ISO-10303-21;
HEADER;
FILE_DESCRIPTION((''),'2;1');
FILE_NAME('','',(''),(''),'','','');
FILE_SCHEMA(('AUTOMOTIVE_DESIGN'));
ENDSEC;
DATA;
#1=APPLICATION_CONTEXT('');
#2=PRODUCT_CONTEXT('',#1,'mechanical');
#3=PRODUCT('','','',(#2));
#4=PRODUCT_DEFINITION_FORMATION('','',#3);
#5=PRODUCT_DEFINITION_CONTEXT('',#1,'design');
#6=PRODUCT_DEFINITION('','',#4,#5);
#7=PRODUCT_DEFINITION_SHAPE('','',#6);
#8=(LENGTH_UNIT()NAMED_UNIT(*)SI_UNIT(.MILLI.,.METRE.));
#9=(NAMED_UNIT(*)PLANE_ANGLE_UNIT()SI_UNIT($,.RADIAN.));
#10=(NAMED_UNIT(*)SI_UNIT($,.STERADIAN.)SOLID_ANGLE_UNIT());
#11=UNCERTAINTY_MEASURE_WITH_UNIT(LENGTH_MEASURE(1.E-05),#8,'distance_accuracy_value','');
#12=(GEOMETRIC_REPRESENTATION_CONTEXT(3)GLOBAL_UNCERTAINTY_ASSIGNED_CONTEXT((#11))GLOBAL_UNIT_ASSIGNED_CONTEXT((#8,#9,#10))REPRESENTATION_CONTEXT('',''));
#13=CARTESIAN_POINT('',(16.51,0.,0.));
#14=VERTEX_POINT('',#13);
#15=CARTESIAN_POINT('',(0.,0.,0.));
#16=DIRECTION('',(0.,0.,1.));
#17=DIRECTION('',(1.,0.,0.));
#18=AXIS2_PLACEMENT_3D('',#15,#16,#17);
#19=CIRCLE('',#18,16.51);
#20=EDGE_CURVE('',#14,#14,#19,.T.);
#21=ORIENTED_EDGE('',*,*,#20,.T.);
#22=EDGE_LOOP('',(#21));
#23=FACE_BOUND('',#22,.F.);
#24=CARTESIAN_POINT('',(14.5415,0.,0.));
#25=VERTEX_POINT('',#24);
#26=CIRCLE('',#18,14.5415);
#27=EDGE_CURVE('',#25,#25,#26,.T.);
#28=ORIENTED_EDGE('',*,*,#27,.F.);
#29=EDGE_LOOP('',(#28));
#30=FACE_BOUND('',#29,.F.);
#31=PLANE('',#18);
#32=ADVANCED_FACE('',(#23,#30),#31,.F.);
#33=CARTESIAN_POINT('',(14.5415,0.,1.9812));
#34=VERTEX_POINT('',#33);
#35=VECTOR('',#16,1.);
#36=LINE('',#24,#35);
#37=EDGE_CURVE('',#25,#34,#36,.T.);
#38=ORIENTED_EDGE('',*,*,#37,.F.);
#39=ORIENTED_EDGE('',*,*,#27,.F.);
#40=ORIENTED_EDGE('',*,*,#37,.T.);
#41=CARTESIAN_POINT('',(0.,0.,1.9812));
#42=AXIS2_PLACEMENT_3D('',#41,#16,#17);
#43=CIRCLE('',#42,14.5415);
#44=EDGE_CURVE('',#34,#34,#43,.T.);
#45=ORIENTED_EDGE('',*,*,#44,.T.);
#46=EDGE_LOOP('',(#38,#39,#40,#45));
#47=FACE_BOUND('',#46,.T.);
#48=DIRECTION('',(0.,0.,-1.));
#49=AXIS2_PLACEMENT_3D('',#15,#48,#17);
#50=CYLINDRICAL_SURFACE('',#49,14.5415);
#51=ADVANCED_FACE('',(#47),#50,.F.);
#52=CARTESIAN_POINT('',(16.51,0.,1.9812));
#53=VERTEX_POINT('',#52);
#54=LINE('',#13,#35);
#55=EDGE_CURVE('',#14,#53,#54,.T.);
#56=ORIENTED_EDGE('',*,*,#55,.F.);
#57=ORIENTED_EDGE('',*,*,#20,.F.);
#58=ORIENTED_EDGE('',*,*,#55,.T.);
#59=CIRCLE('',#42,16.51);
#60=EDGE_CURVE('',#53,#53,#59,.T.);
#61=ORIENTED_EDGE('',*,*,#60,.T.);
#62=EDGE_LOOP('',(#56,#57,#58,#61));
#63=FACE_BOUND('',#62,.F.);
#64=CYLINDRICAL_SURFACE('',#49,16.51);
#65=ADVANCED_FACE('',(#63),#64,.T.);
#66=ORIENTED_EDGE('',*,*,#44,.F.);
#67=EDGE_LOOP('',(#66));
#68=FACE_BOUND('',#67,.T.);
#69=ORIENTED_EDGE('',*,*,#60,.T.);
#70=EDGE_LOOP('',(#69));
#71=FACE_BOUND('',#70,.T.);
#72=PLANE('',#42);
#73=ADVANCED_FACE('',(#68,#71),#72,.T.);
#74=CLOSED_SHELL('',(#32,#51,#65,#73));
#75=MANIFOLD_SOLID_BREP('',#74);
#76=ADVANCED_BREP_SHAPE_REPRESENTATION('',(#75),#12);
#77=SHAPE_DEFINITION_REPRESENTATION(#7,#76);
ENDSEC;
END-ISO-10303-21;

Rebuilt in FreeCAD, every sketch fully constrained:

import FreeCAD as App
import Part
import Sketcher
from FreeCAD import Vector
Q = App.Units.Quantity

doc = App.newDocument("Part")
body = doc.addObject("PartDesign::Body", "Body")

# Sketch on XY plane
sketch1 = doc.addObject("Sketcher::SketchObject", "Sketch")
body.addObject(sketch1)
sketch1.AttachmentSupport = (doc.XY_Plane, [""])
sketch1.MapMode = "FlatFace"
sketch1.addGeometry([
    Part.Circle(Vector(0, 0, 0), Vector(0, 0, 1), 17),
    Part.Circle(Vector(0, 0, 0), Vector(0, 0, 1), 15),
], False)
sketch1.addConstraint([
    Sketcher.Constraint("Coincident", 0, 3, -1, 1),
    Sketcher.Constraint("Coincident", 1, 3, -1, 1),
    Sketcher.Constraint("Diameter", 0, Q("1.3 in")),
    Sketcher.Constraint("Diameter", 1, Q("1.145 in")),
])
pad1 = doc.addObject("PartDesign::Pad", "Pad")
body.addObject(pad1)
pad1.Profile = sketch1
pad1.Length = Q("0.078 in")

doc.recompute()
